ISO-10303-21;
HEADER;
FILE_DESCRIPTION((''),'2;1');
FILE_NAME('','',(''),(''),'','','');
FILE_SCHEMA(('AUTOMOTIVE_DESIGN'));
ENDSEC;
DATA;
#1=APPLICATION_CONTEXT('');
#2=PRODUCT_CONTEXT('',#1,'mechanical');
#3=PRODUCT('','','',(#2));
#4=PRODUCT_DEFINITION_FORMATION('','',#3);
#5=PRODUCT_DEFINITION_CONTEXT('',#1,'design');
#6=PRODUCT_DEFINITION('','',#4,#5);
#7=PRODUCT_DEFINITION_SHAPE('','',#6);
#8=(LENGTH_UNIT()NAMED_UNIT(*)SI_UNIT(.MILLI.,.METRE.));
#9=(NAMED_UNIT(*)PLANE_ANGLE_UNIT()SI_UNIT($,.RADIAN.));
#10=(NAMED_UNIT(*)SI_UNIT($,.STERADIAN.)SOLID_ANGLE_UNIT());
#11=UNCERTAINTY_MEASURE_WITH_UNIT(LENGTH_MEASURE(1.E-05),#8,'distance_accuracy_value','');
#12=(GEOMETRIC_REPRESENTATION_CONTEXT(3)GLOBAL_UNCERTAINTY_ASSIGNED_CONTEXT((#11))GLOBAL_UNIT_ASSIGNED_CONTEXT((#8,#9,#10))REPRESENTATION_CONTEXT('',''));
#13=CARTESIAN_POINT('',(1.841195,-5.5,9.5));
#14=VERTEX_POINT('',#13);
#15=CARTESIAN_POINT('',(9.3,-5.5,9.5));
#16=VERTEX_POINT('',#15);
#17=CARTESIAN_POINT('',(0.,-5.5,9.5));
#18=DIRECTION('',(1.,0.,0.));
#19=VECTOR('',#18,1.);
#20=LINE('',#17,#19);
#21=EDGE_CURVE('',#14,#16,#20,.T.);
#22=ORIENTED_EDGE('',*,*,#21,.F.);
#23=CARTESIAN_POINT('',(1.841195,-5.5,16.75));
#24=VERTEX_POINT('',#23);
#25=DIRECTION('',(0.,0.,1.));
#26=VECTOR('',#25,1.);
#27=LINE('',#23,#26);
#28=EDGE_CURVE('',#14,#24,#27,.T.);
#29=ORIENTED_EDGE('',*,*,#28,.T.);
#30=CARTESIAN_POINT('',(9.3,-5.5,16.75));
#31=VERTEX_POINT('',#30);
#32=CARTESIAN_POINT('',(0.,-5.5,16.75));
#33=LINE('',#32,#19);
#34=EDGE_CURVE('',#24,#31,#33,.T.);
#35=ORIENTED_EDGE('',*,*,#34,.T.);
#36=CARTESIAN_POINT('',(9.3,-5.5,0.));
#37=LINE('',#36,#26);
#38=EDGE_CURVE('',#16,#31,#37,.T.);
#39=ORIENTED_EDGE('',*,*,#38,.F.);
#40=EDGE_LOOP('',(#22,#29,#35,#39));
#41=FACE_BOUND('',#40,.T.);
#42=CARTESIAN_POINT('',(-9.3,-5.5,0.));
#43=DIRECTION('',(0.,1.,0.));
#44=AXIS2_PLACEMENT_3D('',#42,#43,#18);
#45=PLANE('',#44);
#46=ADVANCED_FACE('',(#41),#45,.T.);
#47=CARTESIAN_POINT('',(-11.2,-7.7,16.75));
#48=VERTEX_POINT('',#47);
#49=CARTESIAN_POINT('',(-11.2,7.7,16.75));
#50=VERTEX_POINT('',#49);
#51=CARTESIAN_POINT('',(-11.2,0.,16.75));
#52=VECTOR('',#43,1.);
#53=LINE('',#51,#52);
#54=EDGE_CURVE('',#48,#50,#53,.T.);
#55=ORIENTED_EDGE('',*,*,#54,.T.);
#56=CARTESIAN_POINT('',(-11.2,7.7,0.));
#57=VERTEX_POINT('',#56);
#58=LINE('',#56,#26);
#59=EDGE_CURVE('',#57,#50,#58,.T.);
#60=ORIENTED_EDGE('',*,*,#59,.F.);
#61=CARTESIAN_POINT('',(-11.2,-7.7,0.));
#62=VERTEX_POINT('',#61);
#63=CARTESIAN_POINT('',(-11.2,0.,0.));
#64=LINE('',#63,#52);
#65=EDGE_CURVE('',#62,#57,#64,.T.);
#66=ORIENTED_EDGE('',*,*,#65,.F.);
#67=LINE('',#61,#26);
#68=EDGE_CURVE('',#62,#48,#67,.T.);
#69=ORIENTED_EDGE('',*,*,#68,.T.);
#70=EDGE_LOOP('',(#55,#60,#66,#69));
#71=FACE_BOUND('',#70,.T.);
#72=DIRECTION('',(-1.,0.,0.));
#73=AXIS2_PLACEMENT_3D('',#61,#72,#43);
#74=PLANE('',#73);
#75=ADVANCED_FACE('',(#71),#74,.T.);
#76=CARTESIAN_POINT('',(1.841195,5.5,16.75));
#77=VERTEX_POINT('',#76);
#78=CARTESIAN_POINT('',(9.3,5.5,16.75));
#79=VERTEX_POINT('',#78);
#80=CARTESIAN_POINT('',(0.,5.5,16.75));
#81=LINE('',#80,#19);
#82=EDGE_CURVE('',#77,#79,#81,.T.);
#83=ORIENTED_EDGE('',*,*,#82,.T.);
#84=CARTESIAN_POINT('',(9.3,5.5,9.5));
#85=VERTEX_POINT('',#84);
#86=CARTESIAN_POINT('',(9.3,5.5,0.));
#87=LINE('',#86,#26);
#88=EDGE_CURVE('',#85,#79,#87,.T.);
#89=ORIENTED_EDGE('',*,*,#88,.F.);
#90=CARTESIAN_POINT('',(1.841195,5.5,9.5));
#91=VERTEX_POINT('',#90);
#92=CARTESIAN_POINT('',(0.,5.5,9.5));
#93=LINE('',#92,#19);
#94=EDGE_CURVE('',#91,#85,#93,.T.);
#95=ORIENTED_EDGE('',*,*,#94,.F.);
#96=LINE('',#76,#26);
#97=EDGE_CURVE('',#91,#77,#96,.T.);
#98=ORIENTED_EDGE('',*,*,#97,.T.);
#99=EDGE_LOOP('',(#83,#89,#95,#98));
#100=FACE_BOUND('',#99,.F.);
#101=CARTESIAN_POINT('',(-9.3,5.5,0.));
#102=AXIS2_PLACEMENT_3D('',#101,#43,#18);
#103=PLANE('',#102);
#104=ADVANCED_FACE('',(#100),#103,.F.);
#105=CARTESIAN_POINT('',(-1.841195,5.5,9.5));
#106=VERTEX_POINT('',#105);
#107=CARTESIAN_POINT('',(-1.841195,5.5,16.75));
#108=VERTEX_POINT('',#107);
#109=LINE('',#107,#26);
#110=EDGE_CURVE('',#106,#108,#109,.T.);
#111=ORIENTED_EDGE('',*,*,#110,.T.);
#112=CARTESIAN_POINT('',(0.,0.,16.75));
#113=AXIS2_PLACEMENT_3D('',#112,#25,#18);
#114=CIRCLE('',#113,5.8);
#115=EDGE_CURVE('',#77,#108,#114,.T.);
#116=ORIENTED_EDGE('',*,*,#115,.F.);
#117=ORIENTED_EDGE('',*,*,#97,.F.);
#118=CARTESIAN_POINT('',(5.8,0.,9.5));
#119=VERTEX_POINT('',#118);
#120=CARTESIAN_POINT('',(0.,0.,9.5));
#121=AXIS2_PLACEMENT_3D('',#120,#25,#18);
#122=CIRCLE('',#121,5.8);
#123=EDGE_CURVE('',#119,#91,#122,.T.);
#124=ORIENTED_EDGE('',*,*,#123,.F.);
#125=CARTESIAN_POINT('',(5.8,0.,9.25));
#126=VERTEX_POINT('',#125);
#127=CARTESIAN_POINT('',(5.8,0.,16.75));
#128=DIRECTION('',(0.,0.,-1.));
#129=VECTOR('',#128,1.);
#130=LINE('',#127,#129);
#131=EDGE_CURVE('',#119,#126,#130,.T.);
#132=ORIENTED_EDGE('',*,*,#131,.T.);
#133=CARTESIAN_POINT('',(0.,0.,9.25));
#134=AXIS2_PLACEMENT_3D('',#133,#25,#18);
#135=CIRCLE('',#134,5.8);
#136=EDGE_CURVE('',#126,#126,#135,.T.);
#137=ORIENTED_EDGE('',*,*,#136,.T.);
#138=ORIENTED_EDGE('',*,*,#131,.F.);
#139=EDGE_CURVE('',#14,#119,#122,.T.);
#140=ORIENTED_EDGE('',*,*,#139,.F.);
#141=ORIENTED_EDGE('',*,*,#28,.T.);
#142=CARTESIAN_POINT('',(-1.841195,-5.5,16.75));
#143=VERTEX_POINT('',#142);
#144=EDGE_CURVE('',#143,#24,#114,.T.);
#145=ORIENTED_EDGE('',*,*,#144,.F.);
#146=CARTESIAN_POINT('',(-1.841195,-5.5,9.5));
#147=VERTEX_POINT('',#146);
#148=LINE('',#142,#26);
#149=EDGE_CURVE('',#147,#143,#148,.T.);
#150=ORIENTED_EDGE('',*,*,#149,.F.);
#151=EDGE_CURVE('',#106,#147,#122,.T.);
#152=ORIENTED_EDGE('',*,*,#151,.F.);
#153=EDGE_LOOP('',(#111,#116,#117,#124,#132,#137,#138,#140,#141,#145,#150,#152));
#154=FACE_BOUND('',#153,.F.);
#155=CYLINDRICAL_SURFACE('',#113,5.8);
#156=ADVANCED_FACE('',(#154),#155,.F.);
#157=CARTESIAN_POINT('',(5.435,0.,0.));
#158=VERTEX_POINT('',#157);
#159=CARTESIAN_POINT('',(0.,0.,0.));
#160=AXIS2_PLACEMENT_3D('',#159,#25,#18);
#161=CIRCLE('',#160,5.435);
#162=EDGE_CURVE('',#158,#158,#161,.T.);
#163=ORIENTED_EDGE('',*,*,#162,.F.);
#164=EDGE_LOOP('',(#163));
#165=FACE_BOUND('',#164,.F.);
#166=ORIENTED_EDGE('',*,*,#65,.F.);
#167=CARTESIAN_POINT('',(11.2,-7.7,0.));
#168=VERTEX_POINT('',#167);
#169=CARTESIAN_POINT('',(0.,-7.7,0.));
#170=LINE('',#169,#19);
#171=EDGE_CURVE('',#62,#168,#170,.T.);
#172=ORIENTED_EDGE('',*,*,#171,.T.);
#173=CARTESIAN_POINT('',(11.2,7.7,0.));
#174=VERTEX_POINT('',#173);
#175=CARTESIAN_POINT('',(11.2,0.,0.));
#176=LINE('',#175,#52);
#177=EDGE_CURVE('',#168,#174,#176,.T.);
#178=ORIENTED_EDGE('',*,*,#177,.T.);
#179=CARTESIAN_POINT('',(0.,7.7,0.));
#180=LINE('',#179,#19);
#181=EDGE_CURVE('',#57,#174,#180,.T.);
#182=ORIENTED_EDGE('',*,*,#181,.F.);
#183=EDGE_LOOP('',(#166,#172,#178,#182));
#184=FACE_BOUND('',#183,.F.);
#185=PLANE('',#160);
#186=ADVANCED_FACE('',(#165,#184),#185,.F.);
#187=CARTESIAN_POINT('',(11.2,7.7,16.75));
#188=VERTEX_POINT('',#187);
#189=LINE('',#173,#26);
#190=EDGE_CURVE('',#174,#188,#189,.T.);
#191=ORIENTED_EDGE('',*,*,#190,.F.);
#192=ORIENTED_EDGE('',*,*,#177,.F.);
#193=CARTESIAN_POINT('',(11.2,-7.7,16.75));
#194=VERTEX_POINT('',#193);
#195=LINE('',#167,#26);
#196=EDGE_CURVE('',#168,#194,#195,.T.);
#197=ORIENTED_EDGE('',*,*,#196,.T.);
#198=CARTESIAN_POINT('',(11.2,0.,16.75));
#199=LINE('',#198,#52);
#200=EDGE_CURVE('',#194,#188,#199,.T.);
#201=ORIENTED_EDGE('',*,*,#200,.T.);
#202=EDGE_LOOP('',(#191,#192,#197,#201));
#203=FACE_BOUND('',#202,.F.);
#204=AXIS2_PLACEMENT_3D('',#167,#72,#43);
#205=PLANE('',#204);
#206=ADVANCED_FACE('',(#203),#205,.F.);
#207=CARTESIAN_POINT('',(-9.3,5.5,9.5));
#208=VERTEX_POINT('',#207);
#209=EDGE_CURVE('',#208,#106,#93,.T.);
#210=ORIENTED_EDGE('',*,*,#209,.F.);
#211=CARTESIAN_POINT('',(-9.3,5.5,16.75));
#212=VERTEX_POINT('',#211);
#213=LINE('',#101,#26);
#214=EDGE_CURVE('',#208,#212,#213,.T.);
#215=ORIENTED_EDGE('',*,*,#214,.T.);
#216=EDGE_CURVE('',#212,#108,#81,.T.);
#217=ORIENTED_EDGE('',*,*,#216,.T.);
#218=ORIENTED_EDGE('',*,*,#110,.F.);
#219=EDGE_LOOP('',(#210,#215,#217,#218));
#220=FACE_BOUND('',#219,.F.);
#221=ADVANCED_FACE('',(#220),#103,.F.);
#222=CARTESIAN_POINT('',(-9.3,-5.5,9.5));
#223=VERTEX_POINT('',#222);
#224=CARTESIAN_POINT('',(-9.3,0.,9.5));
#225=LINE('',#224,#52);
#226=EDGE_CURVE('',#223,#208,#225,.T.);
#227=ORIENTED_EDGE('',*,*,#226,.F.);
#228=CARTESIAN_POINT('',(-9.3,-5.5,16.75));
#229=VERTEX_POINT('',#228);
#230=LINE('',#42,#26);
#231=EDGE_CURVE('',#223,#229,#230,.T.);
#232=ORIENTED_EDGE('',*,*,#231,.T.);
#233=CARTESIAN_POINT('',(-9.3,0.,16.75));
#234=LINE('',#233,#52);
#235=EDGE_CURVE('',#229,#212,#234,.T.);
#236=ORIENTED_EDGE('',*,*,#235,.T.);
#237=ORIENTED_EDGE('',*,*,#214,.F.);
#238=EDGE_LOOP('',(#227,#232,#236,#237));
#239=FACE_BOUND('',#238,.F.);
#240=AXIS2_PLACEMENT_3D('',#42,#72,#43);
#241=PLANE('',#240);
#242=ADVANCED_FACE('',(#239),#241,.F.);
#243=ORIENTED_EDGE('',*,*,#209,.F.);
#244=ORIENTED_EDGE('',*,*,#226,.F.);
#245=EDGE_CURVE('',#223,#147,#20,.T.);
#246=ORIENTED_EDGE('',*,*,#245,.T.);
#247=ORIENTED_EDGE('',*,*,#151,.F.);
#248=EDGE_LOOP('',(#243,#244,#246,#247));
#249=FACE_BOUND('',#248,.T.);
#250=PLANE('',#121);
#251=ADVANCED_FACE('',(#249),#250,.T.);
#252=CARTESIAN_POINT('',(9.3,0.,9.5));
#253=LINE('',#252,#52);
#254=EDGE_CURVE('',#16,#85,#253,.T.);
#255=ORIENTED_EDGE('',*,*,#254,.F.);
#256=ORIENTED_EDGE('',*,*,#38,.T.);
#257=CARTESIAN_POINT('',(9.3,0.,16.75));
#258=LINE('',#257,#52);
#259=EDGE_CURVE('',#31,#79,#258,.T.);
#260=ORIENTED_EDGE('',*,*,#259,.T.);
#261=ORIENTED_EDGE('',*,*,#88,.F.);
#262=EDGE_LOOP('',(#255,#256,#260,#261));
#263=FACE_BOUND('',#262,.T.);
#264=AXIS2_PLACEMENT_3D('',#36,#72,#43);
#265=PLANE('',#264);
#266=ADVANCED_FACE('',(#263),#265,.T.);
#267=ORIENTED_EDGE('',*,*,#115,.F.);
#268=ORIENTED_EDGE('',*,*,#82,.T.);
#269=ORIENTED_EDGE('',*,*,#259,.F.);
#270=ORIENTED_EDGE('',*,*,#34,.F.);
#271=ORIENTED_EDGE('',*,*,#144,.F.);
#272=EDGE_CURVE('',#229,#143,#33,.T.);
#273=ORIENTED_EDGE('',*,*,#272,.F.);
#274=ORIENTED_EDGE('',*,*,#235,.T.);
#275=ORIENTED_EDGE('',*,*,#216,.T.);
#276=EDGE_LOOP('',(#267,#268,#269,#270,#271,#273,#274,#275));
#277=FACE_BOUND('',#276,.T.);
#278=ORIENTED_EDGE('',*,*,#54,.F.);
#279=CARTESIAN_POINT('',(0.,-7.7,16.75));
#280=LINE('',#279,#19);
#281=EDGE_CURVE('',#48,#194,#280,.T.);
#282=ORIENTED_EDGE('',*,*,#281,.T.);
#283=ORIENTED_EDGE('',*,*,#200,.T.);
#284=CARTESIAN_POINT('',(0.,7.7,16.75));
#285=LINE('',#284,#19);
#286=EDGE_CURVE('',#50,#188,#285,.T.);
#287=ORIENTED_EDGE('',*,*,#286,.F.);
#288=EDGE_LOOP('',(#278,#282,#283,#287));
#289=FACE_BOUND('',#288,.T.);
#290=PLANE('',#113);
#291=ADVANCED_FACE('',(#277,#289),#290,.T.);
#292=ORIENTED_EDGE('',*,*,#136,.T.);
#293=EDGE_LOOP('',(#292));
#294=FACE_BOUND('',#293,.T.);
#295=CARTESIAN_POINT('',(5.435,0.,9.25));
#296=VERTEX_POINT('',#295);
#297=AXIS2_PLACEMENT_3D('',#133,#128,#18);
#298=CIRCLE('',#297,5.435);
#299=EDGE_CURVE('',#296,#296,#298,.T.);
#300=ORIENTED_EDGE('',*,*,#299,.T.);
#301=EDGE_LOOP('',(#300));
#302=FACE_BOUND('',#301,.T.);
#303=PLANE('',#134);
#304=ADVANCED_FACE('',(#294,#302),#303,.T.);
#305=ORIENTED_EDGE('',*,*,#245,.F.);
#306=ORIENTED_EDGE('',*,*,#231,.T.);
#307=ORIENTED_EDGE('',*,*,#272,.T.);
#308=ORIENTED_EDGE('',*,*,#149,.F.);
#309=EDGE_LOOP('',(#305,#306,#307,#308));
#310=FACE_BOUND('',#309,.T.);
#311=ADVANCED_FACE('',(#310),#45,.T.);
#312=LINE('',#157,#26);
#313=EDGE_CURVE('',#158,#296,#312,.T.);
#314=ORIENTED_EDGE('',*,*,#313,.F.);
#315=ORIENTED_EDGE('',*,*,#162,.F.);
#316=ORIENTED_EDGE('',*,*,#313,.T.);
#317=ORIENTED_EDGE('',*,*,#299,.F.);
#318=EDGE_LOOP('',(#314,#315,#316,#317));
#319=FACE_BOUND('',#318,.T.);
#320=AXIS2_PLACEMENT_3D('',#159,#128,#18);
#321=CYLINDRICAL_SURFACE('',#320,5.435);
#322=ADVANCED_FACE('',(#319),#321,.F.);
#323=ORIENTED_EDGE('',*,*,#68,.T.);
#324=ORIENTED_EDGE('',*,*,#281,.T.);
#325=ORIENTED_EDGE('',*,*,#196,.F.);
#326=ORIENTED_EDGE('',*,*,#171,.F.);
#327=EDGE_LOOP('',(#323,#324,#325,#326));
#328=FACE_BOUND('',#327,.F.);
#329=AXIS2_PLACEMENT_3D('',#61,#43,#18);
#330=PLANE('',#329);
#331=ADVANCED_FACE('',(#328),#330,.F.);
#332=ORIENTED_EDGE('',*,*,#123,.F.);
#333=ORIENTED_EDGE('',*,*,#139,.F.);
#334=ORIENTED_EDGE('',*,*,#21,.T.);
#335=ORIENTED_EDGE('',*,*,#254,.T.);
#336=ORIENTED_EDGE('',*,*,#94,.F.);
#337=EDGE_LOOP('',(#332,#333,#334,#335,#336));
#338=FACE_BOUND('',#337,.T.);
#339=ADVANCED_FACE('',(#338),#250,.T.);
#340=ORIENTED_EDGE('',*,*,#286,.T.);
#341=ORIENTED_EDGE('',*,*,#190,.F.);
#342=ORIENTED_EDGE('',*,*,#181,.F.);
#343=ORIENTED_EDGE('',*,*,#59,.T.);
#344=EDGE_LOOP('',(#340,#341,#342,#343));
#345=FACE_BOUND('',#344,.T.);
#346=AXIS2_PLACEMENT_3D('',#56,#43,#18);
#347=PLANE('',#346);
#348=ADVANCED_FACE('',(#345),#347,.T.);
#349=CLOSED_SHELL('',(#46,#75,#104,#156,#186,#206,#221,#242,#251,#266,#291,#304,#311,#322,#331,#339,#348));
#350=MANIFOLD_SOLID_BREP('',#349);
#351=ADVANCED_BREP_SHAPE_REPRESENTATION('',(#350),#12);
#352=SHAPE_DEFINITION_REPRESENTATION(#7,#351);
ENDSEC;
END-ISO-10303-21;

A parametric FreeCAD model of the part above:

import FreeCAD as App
import Part
import Sketcher

V = App.Vector
Q = App.Units.Quantity

doc = App.newDocument("Part")
body = doc.addObject("PartDesign::Body", "Body")

sketch1 = body.newObject("Sketcher::SketchObject", "Sketch")
sketch1.AttachmentSupport = (doc.getObject("XY_Plane"), [""])
sketch1.MapMode = "FlatFace"
sketch1.addGeometry([
    Part.LineSegment(V(-11, 8, 0), V(-11, -8, 0)),
    Part.LineSegment(V(-11, -8, 0), V(11, -8, 0)),
    Part.LineSegment(V(11, -8, 0), V(11, 8, 0)),
    Part.LineSegment(V(11, 8, 0), V(-11, 8, 0)),
    Part.LineSegment(V(9, -6, 0), V(-9, -6, 0)),
    Part.LineSegment(V(-9, -6, 0), V(-9, 6, 0)),
    Part.LineSegment(V(-9, 6, 0), V(9, 6, 0)),
    Part.LineSegment(V(9, 6, 0), V(9, -6, 0)),
], False)
sketch1.addConstraint([
    Sketcher.Constraint("Coincident", 0, 2, 1, 1),
    Sketcher.Constraint("Coincident", 1, 2, 2, 1),
    Sketcher.Constraint("Coincident", 2, 2, 3, 1),
    Sketcher.Constraint("Coincident", 3, 2, 0, 1),
    Sketcher.Constraint("Coincident", 4, 2, 5, 1),
    Sketcher.Constraint("Coincident", 5, 2, 6, 1),
    Sketcher.Constraint("Coincident", 6, 2, 7, 1),
    Sketcher.Constraint("Coincident", 7, 2, 4, 1),
    Sketcher.Constraint("Vertical", 0),
    Sketcher.Constraint("Horizontal", 1),
    Sketcher.Constraint("Vertical", 2),
    Sketcher.Constraint("Horizontal", 3),
    Sketcher.Constraint("Horizontal", 4),
    Sketcher.Constraint("Vertical", 5),
    Sketcher.Constraint("Horizontal", 6),
    Sketcher.Constraint("Vertical", 7),
    Sketcher.Constraint("Symmetric", 0, 2, 2, 2, -1, 1),
    Sketcher.Constraint("Symmetric", 4, 2, 6, 2, -1, 1),
    Sketcher.Constraint("DistanceY", 5, 1, 5, 2, Q("11 mm")),
    Sketcher.Constraint("DistanceX", 1, 1, 1, 2, Q("22.4 mm")),
    Sketcher.Constraint("DistanceX", 4, 2, 4, 1, Q("18.6 mm")),
    Sketcher.Constraint("DistanceY", 0, 2, 0, 1, Q("15.4 mm")),
])
pad1 = body.newObject("PartDesign::Pad", "Pad")
pad1.Profile = sketch1
pad1.Length = 16.75

sketch2 = body.newObject("Sketcher::SketchObject", "Sketch001")
sketch2.AttachmentSupport = (doc.getObject("XY_Plane"), [""])
sketch2.MapMode = "FlatFace"
sketch2.addGeometry([
    Part.LineSegment(V(-9, 6, 0), V(-9, -6, 0)),
    Part.LineSegment(V(-9, -6, 0), V(9, -6, 0)),
    Part.LineSegment(V(9, -6, 0), V(9, 6, 0)),
    Part.LineSegment(V(9, 6, 0), V(-9, 6, 0)),
    Part.Circle(V(0, 0, 0), V(0, 0, 1), 5),
], False)
sketch2.addConstraint([
    Sketcher.Constraint("Coincident", 0, 2, 1, 1),
    Sketcher.Constraint("Coincident", 1, 2, 2, 1),
    Sketcher.Constraint("Coincident", 2, 2, 3, 1),
    Sketcher.Constraint("Coincident", 3, 2, 0, 1),
    Sketcher.Constraint("Vertical", 0),
    Sketcher.Constraint("Horizontal", 1),
    Sketcher.Constraint("Vertical", 2),
    Sketcher.Constraint("Horizontal", 3),
    Sketcher.Constraint("Coincident", 4, 3, -1, 1),
    Sketcher.Constraint("Symmetric", 0, 2, 2, 2, -1, 1),
    Sketcher.Constraint("Diameter", 4, Q("10.87 mm")),
    Sketcher.Constraint("DistanceY", 0, 2, 0, 1, Q("11 mm")),
    Sketcher.Constraint("DistanceX", 1, 1, 1, 2, Q("18.6 mm")),
])
pad2 = body.newObject("PartDesign::Pad", "Pad001")
pad2.Profile = sketch2
pad2.Length = 9.5

sketch3 = body.newObject("Sketcher::SketchObject", "Sketch002")
sketch3.AttachmentSupport = (doc.getObject("XY_Plane"), [""])
sketch3.MapMode = "FlatFace"
sketch3.AttachmentOffset = App.Placement(V(0, 0, 16.75), App.Rotation())
sketch3.addGeometry(Part.Circle(V(0, 0, 0), V(0, 0, 1), 6), False)
sketch3.addConstraint([
    Sketcher.Constraint("Coincident", 0, 3, -1, 1),
    Sketcher.Constraint("Diameter", 0, Q("11.6 mm")),
])
pocket1 = body.newObject("PartDesign::Pocket", "Pocket")
pocket1.Profile = sketch3
pocket1.Length = 7.5

doc.recompute()
